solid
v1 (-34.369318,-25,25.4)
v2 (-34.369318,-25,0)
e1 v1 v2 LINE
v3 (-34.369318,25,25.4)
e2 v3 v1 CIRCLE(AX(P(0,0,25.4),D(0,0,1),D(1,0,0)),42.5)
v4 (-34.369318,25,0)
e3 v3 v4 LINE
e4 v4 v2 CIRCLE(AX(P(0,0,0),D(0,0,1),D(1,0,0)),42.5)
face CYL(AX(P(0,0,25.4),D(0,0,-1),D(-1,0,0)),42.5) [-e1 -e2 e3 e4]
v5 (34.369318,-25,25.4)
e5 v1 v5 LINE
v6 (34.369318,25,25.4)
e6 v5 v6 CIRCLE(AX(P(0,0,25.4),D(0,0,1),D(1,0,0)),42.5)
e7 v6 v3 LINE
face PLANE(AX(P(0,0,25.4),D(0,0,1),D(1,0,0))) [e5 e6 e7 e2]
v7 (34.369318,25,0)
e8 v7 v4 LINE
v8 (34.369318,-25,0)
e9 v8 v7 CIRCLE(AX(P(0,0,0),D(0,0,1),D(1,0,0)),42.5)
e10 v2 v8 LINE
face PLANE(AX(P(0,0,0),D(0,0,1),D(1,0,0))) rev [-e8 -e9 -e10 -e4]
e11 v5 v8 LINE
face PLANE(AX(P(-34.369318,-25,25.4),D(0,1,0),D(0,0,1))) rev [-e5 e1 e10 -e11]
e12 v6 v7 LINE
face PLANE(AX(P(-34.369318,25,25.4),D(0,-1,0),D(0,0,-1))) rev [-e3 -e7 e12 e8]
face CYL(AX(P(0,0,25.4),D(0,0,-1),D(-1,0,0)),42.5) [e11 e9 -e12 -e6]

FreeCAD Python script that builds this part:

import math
import FreeCAD as App
import Part
import Sketcher

doc = App.newDocument("Part")
params = doc.addObject("Spreadsheet::Sheet", "Params")
for row, (alias, value) in enumerate([
    ("sketch1_radius", "42.5 mm"),
    ("pad1_length", "25.4 mm"),
], start=1):
    params.set(f"A{row}", alias)
    params.set(f"B{row}", "=" + value)
    params.setAlias(f"B{row}", alias)

body = doc.addObject("PartDesign::Body", "Body")

# Sketch on XY plane
sketch1 = body.newObject("Sketcher::SketchObject", "Sketch")
sketch1.AttachmentSupport = (doc.getObject("XY_Plane"), [""])
sketch1.MapMode = "FlatFace"
sketch1.addGeometry([
    Part.LineSegment(App.Vector(34, 25, 0), App.Vector(-34, 25, 0)),
    Part.ArcOfCircle(Part.Circle(App.Vector(0, 0, 0), App.Vector(0, 0, 1), 42), math.radians(144), math.radians(216)),
    Part.LineSegment(App.Vector(-34, -25, 0), App.Vector(34, -25, 0)),
    Part.ArcOfCircle(Part.Circle(App.Vector(0, 0, 0), App.Vector(0, 0, 1), 42), math.radians(-36), math.radians(36)),
], False)
sketch1.addConstraint([
    Sketcher.Constraint("Coincident", 0, 2, 1, 1),
    Sketcher.Constraint("Coincident", 1, 2, 2, 1),
    Sketcher.Constraint("Coincident", 2, 2, 3, 1),
    Sketcher.Constraint("Coincident", 3, 2, 0, 1),
    Sketcher.Constraint("Horizontal", 0),
    Sketcher.Constraint("Horizontal", 2),
    Sketcher.Constraint("Coincident", 1, 3, -1, 1),
    Sketcher.Constraint("Coincident", 3, 3, -1, 1),
    Sketcher.Constraint("Equal", 1, 3),
    Sketcher.Constraint("Vertical", 0, 2, 1, 2),
    Sketcher.Constraint("Radius", 1, 42.5),
    Sketcher.Constraint("DistanceY", -1, 1, 0, 2, 25.0),
])
sketch1.setExpression("Constraints[10]", "Params.sketch1_radius")
pad1 = body.newObject("PartDesign::Pad", "Pad")
pad1.Profile = sketch1
pad1.setExpression("Length", "Params.pad1_length")

doc.recompute()
